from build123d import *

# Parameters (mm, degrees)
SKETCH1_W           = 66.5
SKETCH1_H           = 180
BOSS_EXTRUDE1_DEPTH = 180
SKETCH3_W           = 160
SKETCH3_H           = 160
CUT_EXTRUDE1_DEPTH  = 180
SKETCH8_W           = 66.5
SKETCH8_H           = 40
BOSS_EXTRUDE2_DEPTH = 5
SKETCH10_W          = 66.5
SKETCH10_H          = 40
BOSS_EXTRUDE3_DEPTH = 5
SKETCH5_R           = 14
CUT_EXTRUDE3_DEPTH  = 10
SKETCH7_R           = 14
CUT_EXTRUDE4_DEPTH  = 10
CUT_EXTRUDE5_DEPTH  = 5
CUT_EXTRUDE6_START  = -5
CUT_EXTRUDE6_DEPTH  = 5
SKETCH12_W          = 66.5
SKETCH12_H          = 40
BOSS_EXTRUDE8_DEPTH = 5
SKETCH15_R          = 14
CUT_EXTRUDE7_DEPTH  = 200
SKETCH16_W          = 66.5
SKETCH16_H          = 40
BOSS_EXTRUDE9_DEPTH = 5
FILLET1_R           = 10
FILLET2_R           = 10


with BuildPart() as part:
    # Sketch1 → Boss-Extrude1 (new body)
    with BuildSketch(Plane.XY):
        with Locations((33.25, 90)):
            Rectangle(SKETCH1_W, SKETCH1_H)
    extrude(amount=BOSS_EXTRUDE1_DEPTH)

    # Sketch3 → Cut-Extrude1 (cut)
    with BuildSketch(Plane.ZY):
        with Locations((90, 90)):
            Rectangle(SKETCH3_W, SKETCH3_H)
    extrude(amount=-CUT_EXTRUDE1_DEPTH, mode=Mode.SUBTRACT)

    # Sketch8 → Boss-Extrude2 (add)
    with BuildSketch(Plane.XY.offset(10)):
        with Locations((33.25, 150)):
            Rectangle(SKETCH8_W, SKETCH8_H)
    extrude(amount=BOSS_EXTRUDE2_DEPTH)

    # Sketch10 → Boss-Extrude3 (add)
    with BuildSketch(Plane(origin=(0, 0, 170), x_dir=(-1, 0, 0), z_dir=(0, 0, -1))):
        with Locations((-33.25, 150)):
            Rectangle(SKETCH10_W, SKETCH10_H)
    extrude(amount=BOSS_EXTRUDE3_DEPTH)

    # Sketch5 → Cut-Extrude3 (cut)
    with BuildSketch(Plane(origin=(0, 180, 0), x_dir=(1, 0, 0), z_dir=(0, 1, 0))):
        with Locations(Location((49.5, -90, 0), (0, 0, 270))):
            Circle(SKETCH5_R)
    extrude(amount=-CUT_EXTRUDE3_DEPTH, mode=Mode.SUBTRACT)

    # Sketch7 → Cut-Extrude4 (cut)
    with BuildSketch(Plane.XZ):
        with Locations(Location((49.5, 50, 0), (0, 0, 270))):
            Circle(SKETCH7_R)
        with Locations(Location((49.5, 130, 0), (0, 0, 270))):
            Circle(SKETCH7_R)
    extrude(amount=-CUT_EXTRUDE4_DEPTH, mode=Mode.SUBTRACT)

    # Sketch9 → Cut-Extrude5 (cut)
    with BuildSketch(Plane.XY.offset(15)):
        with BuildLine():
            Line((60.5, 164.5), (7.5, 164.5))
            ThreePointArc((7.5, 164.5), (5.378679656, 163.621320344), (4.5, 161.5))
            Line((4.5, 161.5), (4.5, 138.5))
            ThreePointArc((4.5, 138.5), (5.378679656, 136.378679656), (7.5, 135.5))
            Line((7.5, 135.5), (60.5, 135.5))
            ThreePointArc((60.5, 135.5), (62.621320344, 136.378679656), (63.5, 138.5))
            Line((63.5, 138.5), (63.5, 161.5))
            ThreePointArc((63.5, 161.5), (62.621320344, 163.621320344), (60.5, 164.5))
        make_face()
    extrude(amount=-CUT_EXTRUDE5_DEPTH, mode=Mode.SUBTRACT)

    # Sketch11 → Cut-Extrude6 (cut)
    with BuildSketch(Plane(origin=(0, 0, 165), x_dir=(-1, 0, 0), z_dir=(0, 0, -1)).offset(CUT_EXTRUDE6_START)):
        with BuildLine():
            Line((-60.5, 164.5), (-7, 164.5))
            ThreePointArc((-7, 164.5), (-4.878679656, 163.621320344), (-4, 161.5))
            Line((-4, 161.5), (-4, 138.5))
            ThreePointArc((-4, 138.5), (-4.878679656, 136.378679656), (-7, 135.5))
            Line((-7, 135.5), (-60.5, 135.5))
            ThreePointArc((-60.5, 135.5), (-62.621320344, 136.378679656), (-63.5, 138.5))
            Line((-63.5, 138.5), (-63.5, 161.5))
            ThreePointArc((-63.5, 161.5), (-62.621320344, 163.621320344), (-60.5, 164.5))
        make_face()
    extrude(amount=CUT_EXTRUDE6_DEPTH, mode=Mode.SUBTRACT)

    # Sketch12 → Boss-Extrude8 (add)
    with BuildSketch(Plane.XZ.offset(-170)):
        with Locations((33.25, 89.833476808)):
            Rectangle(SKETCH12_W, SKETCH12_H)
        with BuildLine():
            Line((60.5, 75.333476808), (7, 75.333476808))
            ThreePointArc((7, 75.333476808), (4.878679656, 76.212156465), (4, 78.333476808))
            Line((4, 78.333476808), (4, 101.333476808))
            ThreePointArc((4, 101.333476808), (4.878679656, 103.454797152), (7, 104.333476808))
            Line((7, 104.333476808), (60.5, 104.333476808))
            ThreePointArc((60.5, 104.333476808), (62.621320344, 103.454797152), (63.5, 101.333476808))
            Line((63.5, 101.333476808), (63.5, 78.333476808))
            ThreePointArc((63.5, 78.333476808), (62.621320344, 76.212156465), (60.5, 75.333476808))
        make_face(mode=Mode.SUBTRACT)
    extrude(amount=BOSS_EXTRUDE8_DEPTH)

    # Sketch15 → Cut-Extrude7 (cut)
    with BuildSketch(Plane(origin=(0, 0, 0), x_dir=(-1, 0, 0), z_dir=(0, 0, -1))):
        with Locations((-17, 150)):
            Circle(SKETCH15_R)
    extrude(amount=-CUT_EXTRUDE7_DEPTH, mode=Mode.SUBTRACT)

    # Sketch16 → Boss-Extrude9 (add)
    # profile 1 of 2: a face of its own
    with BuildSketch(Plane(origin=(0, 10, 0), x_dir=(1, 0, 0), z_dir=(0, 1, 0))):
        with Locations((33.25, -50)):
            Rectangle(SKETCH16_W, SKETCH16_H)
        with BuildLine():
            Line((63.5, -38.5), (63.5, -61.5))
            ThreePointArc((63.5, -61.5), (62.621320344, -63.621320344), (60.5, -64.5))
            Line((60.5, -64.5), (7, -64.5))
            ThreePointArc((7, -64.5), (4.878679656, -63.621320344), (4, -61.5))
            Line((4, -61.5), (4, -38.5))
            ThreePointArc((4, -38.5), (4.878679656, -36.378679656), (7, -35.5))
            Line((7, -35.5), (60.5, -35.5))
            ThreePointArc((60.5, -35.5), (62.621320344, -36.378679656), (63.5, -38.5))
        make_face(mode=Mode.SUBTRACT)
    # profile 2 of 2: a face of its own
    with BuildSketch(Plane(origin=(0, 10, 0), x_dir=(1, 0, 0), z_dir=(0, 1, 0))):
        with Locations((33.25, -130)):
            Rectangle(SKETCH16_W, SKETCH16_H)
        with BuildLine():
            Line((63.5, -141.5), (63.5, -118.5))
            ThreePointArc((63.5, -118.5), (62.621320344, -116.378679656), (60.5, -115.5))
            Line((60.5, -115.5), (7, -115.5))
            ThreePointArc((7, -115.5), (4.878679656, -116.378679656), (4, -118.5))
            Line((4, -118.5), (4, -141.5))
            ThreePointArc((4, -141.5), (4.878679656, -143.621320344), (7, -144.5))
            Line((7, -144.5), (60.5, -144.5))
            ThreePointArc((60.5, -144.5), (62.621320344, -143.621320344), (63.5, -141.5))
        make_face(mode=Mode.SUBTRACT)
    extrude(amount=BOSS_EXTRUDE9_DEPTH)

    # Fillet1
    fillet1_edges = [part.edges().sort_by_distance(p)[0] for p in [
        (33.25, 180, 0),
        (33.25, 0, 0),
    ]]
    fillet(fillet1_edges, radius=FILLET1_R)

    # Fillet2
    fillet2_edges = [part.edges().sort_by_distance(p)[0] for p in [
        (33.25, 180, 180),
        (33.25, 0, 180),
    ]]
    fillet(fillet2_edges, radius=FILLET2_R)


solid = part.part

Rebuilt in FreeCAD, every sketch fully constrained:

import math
import FreeCAD as App
import Part
import Sketcher

V = App.Vector


def edges_at(feature, points):
    """Names of the edges that pass closest to the given points."""
    edges = feature.Shape.Edges
    near = lambda p: min(range(len(edges)), key=lambda i: edges[i].distToShape(Part.Vertex(*p))[0])
    return sorted({f"Edge{near(p) + 1}" for p in points})

doc = App.newDocument("Part")
body = doc.addObject("PartDesign::Body", "Body")

# Sketch on XY plane
sketch1 = body.newObject("Sketcher::SketchObject", "Sketch")
sketch1.AttachmentSupport = (doc.getObject("XY_Plane"), [""])
sketch1.MapMode = "FlatFace"
sketch1.addGeometry([
    Part.LineSegment(V(0, 180, 0), V(0, 0, 0)),
    Part.LineSegment(V(0, 0, 0), V(66, 0, 0)),
    Part.LineSegment(V(66, 0, 0), V(66, 180, 0)),
    Part.LineSegment(V(66, 180, 0), V(0, 180, 0)),
], False)
sketch1.addConstraint([
    Sketcher.Constraint("Coincident", 0, 2, 1, 1),
    Sketcher.Constraint("Coincident", 1, 2, 2, 1),
    Sketcher.Constraint("Coincident", 2, 2, 3, 1),
    Sketcher.Constraint("Coincident", 3, 2, 0, 1),
    Sketcher.Constraint("Vertical", 0),
    Sketcher.Constraint("Horizontal", 1),
    Sketcher.Constraint("Vertical", 2),
    Sketcher.Constraint("Horizontal", 3),
    Sketcher.Constraint("Coincident", 0, 2, -1, 1),
    Sketcher.Constraint("DistanceY", 0, 2, 0, 1, 180.0),
    Sketcher.Constraint("DistanceX", 1, 1, 1, 2, 66.5),
])
pad1 = body.newObject("PartDesign::Pad", "Pad")
pad1.Profile = sketch1
pad1.Length = 180

# Sketch on YZ plane
sketch2 = body.newObject("Sketcher::SketchObject", "Sketch001")
sketch2.AttachmentSupport = (doc.getObject("YZ_Plane"), [""])
sketch2.MapMode = "FlatFace"
sketch2.addGeometry([
    Part.LineSegment(V(170, 10, 0), V(10, 10, 0)),
    Part.LineSegment(V(10, 10, 0), V(10, 170, 0)),
    Part.LineSegment(V(10, 170, 0), V(170, 170, 0)),
    Part.LineSegment(V(170, 170, 0), V(170, 10, 0)),
], False)
sketch2.addConstraint([
    Sketcher.Constraint("Coincident", 0, 2, 1, 1),
    Sketcher.Constraint("Coincident", 1, 2, 2, 1),
    Sketcher.Constraint("Coincident", 2, 2, 3, 1),
    Sketcher.Constraint("Coincident", 3, 2, 0, 1),
    Sketcher.Constraint("Horizontal", 0),
    Sketcher.Constraint("Vertical", 1),
    Sketcher.Constraint("Horizontal", 2),
    Sketcher.Constraint("Vertical", 3),
    Sketcher.Constraint("Equal", 2, 1),
    Sketcher.Constraint("DistanceX", 0, 2, 0, 1, 160.0),
    Sketcher.Constraint("DistanceX", -1, 1, 0, 2, 10.0),
    Sketcher.Constraint("DistanceY", -1, 1, 0, 2, 10.0),
])
pocket1 = body.newObject("PartDesign::Pocket", "Pocket")
pocket1.Profile = sketch2
pocket1.Length = 180
pocket1.Reversed = True

# Sketch on XY plane
sketch3 = body.newObject("Sketcher::SketchObject", "Sketch002")
sketch3.AttachmentSupport = (doc.getObject("XY_Plane"), [""])
sketch3.MapMode = "FlatFace"
sketch3.AttachmentOffset = App.Placement(V(0, 0, 10), App.Rotation())
sketch3.addGeometry([
    Part.LineSegment(V(0, 170, 0), V(0, 130, 0)),
    Part.LineSegment(V(0, 130, 0), V(66, 130, 0)),
    Part.LineSegment(V(66, 130, 0), V(66, 170, 0)),
    Part.LineSegment(V(66, 170, 0), V(0, 170, 0)),
], False)
sketch3.addConstraint([
    Sketcher.Constraint("Coincident", 0, 2, 1, 1),
    Sketcher.Constraint("Coincident", 1, 2, 2, 1),
    Sketcher.Constraint("Coincident", 2, 2, 3, 1),
    Sketcher.Constraint("Coincident", 3, 2, 0, 1),
    Sketcher.Constraint("Vertical", 0),
    Sketcher.Constraint("Horizontal", 1),
    Sketcher.Constraint("Vertical", 2),
    Sketcher.Constraint("Horizontal", 3),
    Sketcher.Constraint("PointOnObject", 0, 2, -2),
    Sketcher.Constraint("DistanceY", 0, 2, 0, 1, 40.0),
    Sketcher.Constraint("DistanceX", 1, 1, 1, 2, 66.5),
    Sketcher.Constraint("DistanceY", -1, 1, 0, 2, 130.0),
])
pad2 = body.newObject("PartDesign::Pad", "Pad001")
pad2.Profile = sketch3
pad2.Length = 5

# Sketch on XY plane
sketch4 = body.newObject("Sketcher::SketchObject", "Sketch003")
sketch4.AttachmentSupport = (doc.getObject("XY_Plane"), [""])
sketch4.MapMode = "FlatFace"
sketch4.AttachmentOffset = App.Placement(V(0, 0, 170), App.Rotation())
sketch4.addGeometry([
    Part.LineSegment(V(66, 170, 0), V(66, 130, 0)),
    Part.LineSegment(V(66, 130, 0), V(0, 130, 0)),
    Part.LineSegment(V(0, 130, 0), V(0, 170, 0)),
    Part.LineSegment(V(0, 170, 0), V(66, 170, 0)),
], False)
sketch4.addConstraint([
    Sketcher.Constraint("Coincident", 0, 2, 1, 1),
    Sketcher.Constraint("Coincident", 1, 2, 2, 1),
    Sketcher.Constraint("Coincident", 2, 2, 3, 1),
    Sketcher.Constraint("Coincident", 3, 2, 0, 1),
    Sketcher.Constraint("Vertical", 0),
    Sketcher.Constraint("Horizontal", 1),
    Sketcher.Constraint("Vertical", 2),
    Sketcher.Constraint("Horizontal", 3),
    Sketcher.Constraint("PointOnObject", 1, 2, -2),
    Sketcher.Constraint("DistanceY", 0, 2, 0, 1, 40.0),
    Sketcher.Constraint("DistanceX", 1, 2, 1, 1, 66.5),
    Sketcher.Constraint("DistanceY", -1, 1, 0, 2, 130.0),
])
pad3 = body.newObject("PartDesign::Pad", "Pad002")
pad3.Profile = sketch4
pad3.Length = 5
pad3.Reversed = True

# Sketch on XZ plane
sketch5 = body.newObject("Sketcher::SketchObject", "Sketch004")
sketch5.AttachmentSupport = (doc.getObject("XZ_Plane"), [""])
sketch5.MapMode = "FlatFace"
sketch5.AttachmentOffset = App.Placement(V(0, 0, -180), App.Rotation())
sketch5.addGeometry(Part.Circle(V(50, 90, 0), V(0, 0, 1), 14), False)
sketch5.addConstraint([
    Sketcher.Constraint("Diameter", 0, 28.0),
    Sketcher.Constraint("DistanceY", -1, 1, 0, 3, 90.0),
    Sketcher.Constraint("DistanceX", -1, 1, 0, 3, 49.5),
])
pocket2 = body.newObject("PartDesign::Pocket", "Pocket001")
pocket2.Profile = sketch5
pocket2.Length = 10
pocket2.Reversed = True

# Sketch on XZ plane
sketch6 = body.newObject("Sketcher::SketchObject", "Sketch005")
sketch6.AttachmentSupport = (doc.getObject("XZ_Plane"), [""])
sketch6.MapMode = "FlatFace"
sketch6.addGeometry([
    Part.Circle(V(50, 50, 0), V(0, 0, 1), 14),
    Part.Circle(V(50, 130, 0), V(0, 0, 1), 14),
], False)
sketch6.addConstraint([
    Sketcher.Constraint("Equal", 0, 1),
    Sketcher.Constraint("Vertical", 0, 3, 1, 3),
    Sketcher.Constraint("Diameter", 0, 28.0),
    Sketcher.Constraint("DistanceY", -1, 1, 0, 3, 50.0),
    Sketcher.Constraint("DistanceY", -1, 1, 1, 3, 130.0),
    Sketcher.Constraint("DistanceX", -1, 1, 0, 3, 49.5),
])
pocket3 = body.newObject("PartDesign::Pocket", "Pocket002")
pocket3.Profile = sketch6
pocket3.Length = 10

# Sketch on XY plane
sketch7 = body.newObject("Sketcher::SketchObject", "Sketch006")
sketch7.AttachmentSupport = (doc.getObject("XY_Plane"), [""])
sketch7.MapMode = "FlatFace"
sketch7.AttachmentOffset = App.Placement(V(0, 0, 15), App.Rotation())
sketch7.addGeometry([
    Part.LineSegment(V(60.5, 164.5, 0), V(7.5, 164.5, 0)),  # 0
    Part.ArcOfCircle(Part.Circle(V(7.5, 161.5, 0), V(0, 0, 1), 3), math.radians(90), math.radians(180)),  # 1
    Part.LineSegment(V(4.5, 161.5, 0), V(4.5, 138.5, 0)),  # 2
    Part.ArcOfCircle(Part.Circle(V(7.5, 138.5, 0), V(0, 0, 1), 3), math.radians(180), math.radians(270)),  # 3
    Part.LineSegment(V(7.5, 135.5, 0), V(60.5, 135.5, 0)),  # 4
    Part.ArcOfCircle(Part.Circle(V(60.5, 138.5, 0), V(0, 0, 1), 3), math.radians(-90), math.radians(0)),  # 5
    Part.LineSegment(V(63.5, 138.5, 0), V(63.5, 161.5, 0)),  # 6
    Part.ArcOfCircle(Part.Circle(V(60.5, 161.5, 0), V(0, 0, 1), 3), math.radians(0), math.radians(90)),  # 7
], False)
sketch7.addConstraint([
    Sketcher.Constraint("Tangent", 0, 2, 1, 1),
    Sketcher.Constraint("Tangent", 1, 2, 2, 1),
    Sketcher.Constraint("Tangent", 2, 2, 3, 1),
    Sketcher.Constraint("Tangent", 3, 2, 4, 1),
    Sketcher.Constraint("Tangent", 4, 2, 5, 1),
    Sketcher.Constraint("Tangent", 5, 2, 6, 1),
    Sketcher.Constraint("Tangent", 6, 2, 7, 1),
    Sketcher.Constraint("Tangent", 7, 2, 0, 1),
    Sketcher.Constraint("Horizontal", 0),
    Sketcher.Constraint("Vertical", 2),
    Sketcher.Constraint("Horizontal", 4),
    Sketcher.Constraint("Vertical", 6),
    Sketcher.Constraint("Equal", 1, 3),
    Sketcher.Constraint("Equal", 3, 5),
    Sketcher.Constraint("Equal", 5, 7),
    Sketcher.Constraint("Radius", 1, 3.0),
    Sketcher.Constraint("DistanceX", 0, 2, 0, 1, 53.0),
    Sketcher.Constraint("DistanceY", 2, 2, 2, 1, 23.0),
    Sketcher.Constraint("DistanceX", -1, 1, 1, 3, 7.5),
    Sketcher.Constraint("DistanceY", -1, 1, 1, 3, 161.5),
])
pocket4 = body.newObject("PartDesign::Pocket", "Pocket003")
pocket4.Profile = sketch7
pocket4.Length = 5

# Sketch on XY plane
sketch8 = body.newObject("Sketcher::SketchObject", "Sketch007")
sketch8.AttachmentSupport = (doc.getObject("XY_Plane"), [""])
sketch8.MapMode = "FlatFace"
sketch8.AttachmentOffset = App.Placement(V(0, 0, 170), App.Rotation())
sketch8.addGeometry([
    Part.LineSegment(V(7, 164.5, 0), V(60.5, 164.5, 0)),  # 0
    Part.ArcOfCircle(Part.Circle(V(60.5, 161.5, 0), V(0, 0, 1), 3), math.radians(0), math.radians(90)),  # 1
    Part.LineSegment(V(63.5, 161.5, 0), V(63.5, 138.5, 0)),  # 2
    Part.ArcOfCircle(Part.Circle(V(60.5, 138.5, 0), V(0, 0, 1), 3), math.radians(-90), math.radians(0)),  # 3
    Part.LineSegment(V(60.5, 135.5, 0), V(7, 135.5, 0)),  # 4
    Part.ArcOfCircle(Part.Circle(V(7, 138.5, 0), V(0, 0, 1), 3), math.radians(180), math.radians(270)),  # 5
    Part.LineSegment(V(4, 138.5, 0), V(4, 161.5, 0)),  # 6
    Part.ArcOfCircle(Part.Circle(V(7, 161.5, 0), V(0, 0, 1), 3), math.radians(90), math.radians(180)),  # 7
], False)
sketch8.addConstraint([
    Sketcher.Constraint("Tangent", 0, 2, 1, 2),
    Sketcher.Constraint("Tangent", 1, 1, 2, 1),
    Sketcher.Constraint("Tangent", 2, 2, 3, 2),
    Sketcher.Constraint("Tangent", 3, 1, 4, 1),
    Sketcher.Constraint("Tangent", 4, 2, 5, 2),
    Sketcher.Constraint("Tangent", 5, 1, 6, 1),
    Sketcher.Constraint("Tangent", 6, 2, 7, 2),
    Sketcher.Constraint("Tangent", 7, 1, 0, 1),
    Sketcher.Constraint("Horizontal", 0),
    Sketcher.Constraint("Vertical", 2),
    Sketcher.Constraint("Horizontal", 4),
    Sketcher.Constraint("Vertical", 6),
    Sketcher.Constraint("Equal", 1, 3),
    Sketcher.Constraint("Equal", 3, 5),
    Sketcher.Constraint("Equal", 5, 7),
    Sketcher.Constraint("Radius", 1, 3.0),
    Sketcher.Constraint("DistanceY", 2, 2, 2, 1, 23.0),
    Sketcher.Constraint("DistanceX", 0, 1, 0, 2, 53.5),
    Sketcher.Constraint("DistanceX", -1, 1, 5, 3, 7.0),
    Sketcher.Constraint("DistanceY", -1, 1, 1, 3, 161.5),
])
pocket5 = body.newObject("PartDesign::Pocket", "Pocket004")
pocket5.Profile = sketch8
pocket5.Length = 5

# Sketch on XZ plane
sketch9 = body.newObject("Sketcher::SketchObject", "Sketch008")
sketch9.AttachmentSupport = (doc.getObject("XZ_Plane"), [""])
sketch9.MapMode = "FlatFace"
sketch9.AttachmentOffset = App.Placement(V(0, 0, -170), App.Rotation())
sketch9.addGeometry([
    Part.LineSegment(V(0, 109.8, 0), V(0, 69.8, 0)),  # 0
    Part.LineSegment(V(0, 69.8, 0), V(66.5, 69.8, 0)),  # 1
    Part.LineSegment(V(66.5, 69.8, 0), V(66.5, 109.8, 0)),  # 2
    Part.LineSegment(V(66.5, 109.8, 0), V(0, 109.8, 0)),  # 3
    Part.ArcOfCircle(Part.Circle(V(60.5, 78.3, 0), V(0, 0, 1), 3), math.radians(-90), math.radians(0)),  # 4
    Part.LineSegment(V(60.5, 75.3, 0), V(7, 75.3, 0)),  # 5
    Part.ArcOfCircle(Part.Circle(V(7, 78.3, 0), V(0, 0, 1), 3), math.radians(180), math.radians(270)),  # 6
    Part.LineSegment(V(4, 78.3, 0), V(4, 101.3, 0)),  # 7
    Part.ArcOfCircle(Part.Circle(V(7, 101.3, 0), V(0, 0, 1), 3), math.radians(90), math.radians(180)),  # 8
    Part.LineSegment(V(7, 104.3, 0), V(60.5, 104.3, 0)),  # 9
    Part.ArcOfCircle(Part.Circle(V(60.5, 101.3, 0), V(0, 0, 1), 3), math.radians(0), math.radians(90)),  # 10
    Part.LineSegment(V(63.5, 101.3, 0), V(63.5, 78.3, 0)),  # 11
], False)
sketch9.addConstraint([
    Sketcher.Constraint("Coincident", 0, 2, 1, 1),
    Sketcher.Constraint("Coincident", 1, 2, 2, 1),
    Sketcher.Constraint("Coincident", 2, 2, 3, 1),
    Sketcher.Constraint("Coincident", 3, 2, 0, 1),
    Sketcher.Constraint("Tangent", 4, 1, 5, 1),
    Sketcher.Constraint("Tangent", 5, 2, 6, 2),
    Sketcher.Constraint("Tangent", 6, 1, 7, 1),
    Sketcher.Constraint("Tangent", 7, 2, 8, 2),
    Sketcher.Constraint("Tangent", 8, 1, 9, 1),
    Sketcher.Constraint("Tangent", 9, 2, 10, 2),
    Sketcher.Constraint("Tangent", 10, 1, 11, 1),
    Sketcher.Constraint("Tangent", 11, 2, 4, 2),
    Sketcher.Constraint("Vertical", 0),
    Sketcher.Constraint("Horizontal", 1),
    Sketcher.Constraint("Vertical", 2),
    Sketcher.Constraint("Horizontal", 3),
    Sketcher.Constraint("Horizontal", 5),
    Sketcher.Constraint("Vertical", 7),
    Sketcher.Constraint("Horizontal", 9),
    Sketcher.Constraint("Vertical", 11),
    Sketcher.Constraint("Equal", 4, 6),
    Sketcher.Constraint("Equal", 6, 8),
    Sketcher.Constraint("Equal", 8, 10),
    Sketcher.Constraint("PointOnObject", 0, 2, -2),
    Sketcher.Constraint("Radius", 4, 3.0),
    Sketcher.Constraint("DistanceY", 0, 2, 0, 1, 40.0),
    Sketcher.Constraint("DistanceY", 7, 1, 7, 2, 23.0),
    Sketcher.Constraint("DistanceX", 1, 1, 1, 2, 66.5),
    Sketcher.Constraint("DistanceX", 5, 2, 5, 1, 53.5),
    Sketcher.Constraint("DistanceX", -1, 1, 6, 3, 7.0),
    Sketcher.Constraint("DistanceY", 0, 2, 6, 3, 8.5),
    Sketcher.Constraint("DistanceY", -1, 1, 4, 3, 78.333477),
])
pad4 = body.newObject("PartDesign::Pad", "Pad003")
pad4.Profile = sketch9
pad4.Length = 5

# Sketch on XY plane
sketch10 = body.newObject("Sketcher::SketchObject", "Sketch009")
sketch10.AttachmentSupport = (doc.getObject("XY_Plane"), [""])
sketch10.MapMode = "FlatFace"
sketch10.addGeometry(Part.Circle(V(17, 150, 0), V(0, 0, 1), 14), False)
sketch10.addConstraint([
    Sketcher.Constraint("Diameter", 0, 28.0),
    Sketcher.Constraint("DistanceX", -1, 1, 0, 3, 17.0),
    Sketcher.Constraint("DistanceY", -1, 1, 0, 3, 150.0),
])
pocket6 = body.newObject("PartDesign::Pocket", "Pocket005")
pocket6.Profile = sketch10
pocket6.Length = 200
pocket6.Reversed = True

# Sketch on XZ plane
sketch11 = body.newObject("Sketcher::SketchObject", "Sketch010")
sketch11.AttachmentSupport = (doc.getObject("XZ_Plane"), [""])
sketch11.MapMode = "FlatFace"
sketch11.AttachmentOffset = App.Placement(V(0, 0, -10), App.Rotation())
sketch11.addGeometry([
    Part.LineSegment(V(0, 30, 0), V(0, 70, 0)),  # 0
    Part.LineSegment(V(0, 70, 0), V(66.5, 70, 0)),  # 1
    Part.LineSegment(V(66.5, 70, 0), V(66.5, 30, 0)),  # 2
    Part.LineSegment(V(66.5, 30, 0), V(0, 30, 0)),  # 3
    Part.ArcOfCircle(Part.Circle(V(60.5, 38.5, 0), V(0, 0, 1), 3), math.radians(-90), math.radians(0)),  # 4
    Part.LineSegment(V(63.5, 38.5, 0), V(63.5, 61.5, 0)),  # 5
    Part.ArcOfCircle(Part.Circle(V(60.5, 61.5, 0), V(0, 0, 1), 3), math.radians(0), math.radians(90)),  # 6
    Part.LineSegment(V(60.5, 64.5, 0), V(7, 64.5, 0)),  # 7
    Part.ArcOfCircle(Part.Circle(V(7, 61.5, 0), V(0, 0, 1), 3), math.radians(90), math.radians(180)),  # 8
    Part.LineSegment(V(4, 61.5, 0), V(4, 38.5, 0)),  # 9
    Part.ArcOfCircle(Part.Circle(V(7, 38.5, 0), V(0, 0, 1), 3), math.radians(180), math.radians(270)),  # 10
    Part.LineSegment(V(7, 35.5, 0), V(60.5, 35.5, 0)),  # 11
    Part.LineSegment(V(0, 110, 0), V(0, 150, 0)),  # 12
    Part.LineSegment(V(0, 150, 0), V(66.5, 150, 0)),  # 13
    Part.LineSegment(V(66.5, 150, 0), V(66.5, 110, 0)),  # 14
    Part.LineSegment(V(66.5, 110, 0), V(0, 110, 0)),  # 15
    Part.LineSegment(V(63.5, 118.5, 0), V(63.5, 141.5, 0)),  # 16
    Part.ArcOfCircle(Part.Circle(V(60.5, 141.5, 0), V(0, 0, 1), 3), math.radians(0), math.radians(90)),  # 17
    Part.LineSegment(V(60.5, 144.5, 0), V(7, 144.5, 0)),  # 18
    Part.ArcOfCircle(Part.Circle(V(7, 141.5, 0), V(0, 0, 1), 3), math.radians(90), math.radians(180)),  # 19
    Part.LineSegment(V(4, 141.5, 0), V(4, 118.5, 0)),  # 20
    Part.ArcOfCircle(Part.Circle(V(7, 118.5, 0), V(0, 0, 1), 3), math.radians(180), math.radians(270)),  # 21
    Part.LineSegment(V(7, 115.5, 0), V(60.5, 115.5, 0)),  # 22
    Part.ArcOfCircle(Part.Circle(V(60.5, 118.5, 0), V(0, 0, 1), 3), math.radians(-90), math.radians(0)),  # 23
], False)
sketch11.addConstraint([
    Sketcher.Constraint("Coincident", 0, 2, 1, 1),
    Sketcher.Constraint("Coincident", 1, 2, 2, 1),
    Sketcher.Constraint("Coincident", 2, 2, 3, 1),
    Sketcher.Constraint("Coincident", 3, 2, 0, 1),
    Sketcher.Constraint("Tangent", 4, 2, 5, 1),
    Sketcher.Constraint("Tangent", 5, 2, 6, 1),
    Sketcher.Constraint("Tangent", 6, 2, 7, 1),
    Sketcher.Constraint("Tangent", 7, 2, 8, 1),
    Sketcher.Constraint("Tangent", 8, 2, 9, 1),
    Sketcher.Constraint("Tangent", 9, 2, 10, 1),
    Sketcher.Constraint("Tangent", 10, 2, 11, 1),
    Sketcher.Constraint("Tangent", 11, 2, 4, 1),
    Sketcher.Constraint("Coincident", 12, 2, 13, 1),
    Sketcher.Constraint("Coincident", 13, 2, 14, 1),
    Sketcher.Constraint("Coincident", 14, 2, 15, 1),
    Sketcher.Constraint("Coincident", 15, 2, 12, 1),
    Sketcher.Constraint("Tangent", 16, 2, 17, 1),
    Sketcher.Constraint("Tangent", 17, 2, 18, 1),
    Sketcher.Constraint("Tangent", 18, 2, 19, 1),
    Sketcher.Constraint("Tangent", 19, 2, 20, 1),
    Sketcher.Constraint("Tangent", 20, 2, 21, 1),
    Sketcher.Constraint("Tangent", 21, 2, 22, 1),
    Sketcher.Constraint("Tangent", 22, 2, 23, 1),
    Sketcher.Constraint("Tangent", 23, 2, 16, 1),
    Sketcher.Constraint("Vertical", 0),
    Sketcher.Constraint("Horizontal", 1),
    Sketcher.Constraint("Vertical", 2),
    Sketcher.Constraint("Horizontal", 3),
    Sketcher.Constraint("Vertical", 5),
    Sketcher.Constraint("Horizontal", 7),
    Sketcher.Constraint("Vertical", 9),
    Sketcher.Constraint("Horizontal", 11),
    Sketcher.Constraint("Vertical", 12),
    Sketcher.Constraint("Horizontal", 13),
    Sketcher.Constraint("Vertical", 14),
    Sketcher.Constraint("Horizontal", 15),
    Sketcher.Constraint("Vertical", 16),
    Sketcher.Constraint("Horizontal", 18),
    Sketcher.Constraint("Vertical", 20),
    Sketcher.Constraint("Horizontal", 22),
    Sketcher.Constraint("Equal", 4, 6),
    Sketcher.Constraint("Equal", 6, 8),
    Sketcher.Constraint("Equal", 8, 10),
    Sketcher.Constraint("Equal", 10, 17),
    Sketcher.Constraint("Equal", 17, 19),
    Sketcher.Constraint("Equal", 19, 21),
    Sketcher.Constraint("Equal", 21, 23),
    Sketcher.Constraint("PointOnObject", 0, 2, -2),
    Sketcher.Constraint("PointOnObject", 12, 2, -2),
    Sketcher.Constraint("Vertical", 6, 3, 17, 3),
    Sketcher.Constraint("Vertical", 10, 3, 19, 3),
    Sketcher.Constraint("Vertical", 2, 2, 13, 2),
    Sketcher.Constraint("Equal", 2, 12),
    Sketcher.Constraint("Equal", 9, 16),
    Sketcher.Constraint("Radius", 4, 3.0),
    Sketcher.Constraint("DistanceY", 0, 1, 0, 2, 40.0),
    Sketcher.Constraint("DistanceY", 5, 1, 5, 2, 23.0),
    Sketcher.Constraint("DistanceX", 1, 1, 1, 2, 66.5),
    Sketcher.Constraint("DistanceX", 7, 2, 7, 1, 53.5),
    Sketcher.Constraint("DistanceX", -1, 1, 8, 3, 7.0),
    Sketcher.Constraint("DistanceY", -1, 1, 0, 2, 70.0),
    Sketcher.Constraint("DistanceY", -1, 1, 12, 2, 150.0),
    Sketcher.Constraint("DistanceY", 6, 3, 17, 3, 80.0),
    Sketcher.Constraint("DistanceY", -1, 1, 4, 3, 38.5),
])
pad5 = body.newObject("PartDesign::Pad", "Pad004")
pad5.Profile = sketch11
pad5.Length = 5
pad5.Reversed = True
doc.recompute()

fillet = body.newObject("PartDesign::Fillet", "Fillet")
fillet.Base = (pad5, edges_at(pad5, [(33.25, 180, 0), (33.25, 0, 0)]))
fillet.Radius = 10
doc.recompute()

fillet2 = body.newObject("PartDesign::Fillet", "Fillet001")
fillet2.Base = (fillet, edges_at(fillet, [(33.25, 180, 180), (33.25, 0, 180)]))
fillet2.Radius = 10

doc.recompute()
